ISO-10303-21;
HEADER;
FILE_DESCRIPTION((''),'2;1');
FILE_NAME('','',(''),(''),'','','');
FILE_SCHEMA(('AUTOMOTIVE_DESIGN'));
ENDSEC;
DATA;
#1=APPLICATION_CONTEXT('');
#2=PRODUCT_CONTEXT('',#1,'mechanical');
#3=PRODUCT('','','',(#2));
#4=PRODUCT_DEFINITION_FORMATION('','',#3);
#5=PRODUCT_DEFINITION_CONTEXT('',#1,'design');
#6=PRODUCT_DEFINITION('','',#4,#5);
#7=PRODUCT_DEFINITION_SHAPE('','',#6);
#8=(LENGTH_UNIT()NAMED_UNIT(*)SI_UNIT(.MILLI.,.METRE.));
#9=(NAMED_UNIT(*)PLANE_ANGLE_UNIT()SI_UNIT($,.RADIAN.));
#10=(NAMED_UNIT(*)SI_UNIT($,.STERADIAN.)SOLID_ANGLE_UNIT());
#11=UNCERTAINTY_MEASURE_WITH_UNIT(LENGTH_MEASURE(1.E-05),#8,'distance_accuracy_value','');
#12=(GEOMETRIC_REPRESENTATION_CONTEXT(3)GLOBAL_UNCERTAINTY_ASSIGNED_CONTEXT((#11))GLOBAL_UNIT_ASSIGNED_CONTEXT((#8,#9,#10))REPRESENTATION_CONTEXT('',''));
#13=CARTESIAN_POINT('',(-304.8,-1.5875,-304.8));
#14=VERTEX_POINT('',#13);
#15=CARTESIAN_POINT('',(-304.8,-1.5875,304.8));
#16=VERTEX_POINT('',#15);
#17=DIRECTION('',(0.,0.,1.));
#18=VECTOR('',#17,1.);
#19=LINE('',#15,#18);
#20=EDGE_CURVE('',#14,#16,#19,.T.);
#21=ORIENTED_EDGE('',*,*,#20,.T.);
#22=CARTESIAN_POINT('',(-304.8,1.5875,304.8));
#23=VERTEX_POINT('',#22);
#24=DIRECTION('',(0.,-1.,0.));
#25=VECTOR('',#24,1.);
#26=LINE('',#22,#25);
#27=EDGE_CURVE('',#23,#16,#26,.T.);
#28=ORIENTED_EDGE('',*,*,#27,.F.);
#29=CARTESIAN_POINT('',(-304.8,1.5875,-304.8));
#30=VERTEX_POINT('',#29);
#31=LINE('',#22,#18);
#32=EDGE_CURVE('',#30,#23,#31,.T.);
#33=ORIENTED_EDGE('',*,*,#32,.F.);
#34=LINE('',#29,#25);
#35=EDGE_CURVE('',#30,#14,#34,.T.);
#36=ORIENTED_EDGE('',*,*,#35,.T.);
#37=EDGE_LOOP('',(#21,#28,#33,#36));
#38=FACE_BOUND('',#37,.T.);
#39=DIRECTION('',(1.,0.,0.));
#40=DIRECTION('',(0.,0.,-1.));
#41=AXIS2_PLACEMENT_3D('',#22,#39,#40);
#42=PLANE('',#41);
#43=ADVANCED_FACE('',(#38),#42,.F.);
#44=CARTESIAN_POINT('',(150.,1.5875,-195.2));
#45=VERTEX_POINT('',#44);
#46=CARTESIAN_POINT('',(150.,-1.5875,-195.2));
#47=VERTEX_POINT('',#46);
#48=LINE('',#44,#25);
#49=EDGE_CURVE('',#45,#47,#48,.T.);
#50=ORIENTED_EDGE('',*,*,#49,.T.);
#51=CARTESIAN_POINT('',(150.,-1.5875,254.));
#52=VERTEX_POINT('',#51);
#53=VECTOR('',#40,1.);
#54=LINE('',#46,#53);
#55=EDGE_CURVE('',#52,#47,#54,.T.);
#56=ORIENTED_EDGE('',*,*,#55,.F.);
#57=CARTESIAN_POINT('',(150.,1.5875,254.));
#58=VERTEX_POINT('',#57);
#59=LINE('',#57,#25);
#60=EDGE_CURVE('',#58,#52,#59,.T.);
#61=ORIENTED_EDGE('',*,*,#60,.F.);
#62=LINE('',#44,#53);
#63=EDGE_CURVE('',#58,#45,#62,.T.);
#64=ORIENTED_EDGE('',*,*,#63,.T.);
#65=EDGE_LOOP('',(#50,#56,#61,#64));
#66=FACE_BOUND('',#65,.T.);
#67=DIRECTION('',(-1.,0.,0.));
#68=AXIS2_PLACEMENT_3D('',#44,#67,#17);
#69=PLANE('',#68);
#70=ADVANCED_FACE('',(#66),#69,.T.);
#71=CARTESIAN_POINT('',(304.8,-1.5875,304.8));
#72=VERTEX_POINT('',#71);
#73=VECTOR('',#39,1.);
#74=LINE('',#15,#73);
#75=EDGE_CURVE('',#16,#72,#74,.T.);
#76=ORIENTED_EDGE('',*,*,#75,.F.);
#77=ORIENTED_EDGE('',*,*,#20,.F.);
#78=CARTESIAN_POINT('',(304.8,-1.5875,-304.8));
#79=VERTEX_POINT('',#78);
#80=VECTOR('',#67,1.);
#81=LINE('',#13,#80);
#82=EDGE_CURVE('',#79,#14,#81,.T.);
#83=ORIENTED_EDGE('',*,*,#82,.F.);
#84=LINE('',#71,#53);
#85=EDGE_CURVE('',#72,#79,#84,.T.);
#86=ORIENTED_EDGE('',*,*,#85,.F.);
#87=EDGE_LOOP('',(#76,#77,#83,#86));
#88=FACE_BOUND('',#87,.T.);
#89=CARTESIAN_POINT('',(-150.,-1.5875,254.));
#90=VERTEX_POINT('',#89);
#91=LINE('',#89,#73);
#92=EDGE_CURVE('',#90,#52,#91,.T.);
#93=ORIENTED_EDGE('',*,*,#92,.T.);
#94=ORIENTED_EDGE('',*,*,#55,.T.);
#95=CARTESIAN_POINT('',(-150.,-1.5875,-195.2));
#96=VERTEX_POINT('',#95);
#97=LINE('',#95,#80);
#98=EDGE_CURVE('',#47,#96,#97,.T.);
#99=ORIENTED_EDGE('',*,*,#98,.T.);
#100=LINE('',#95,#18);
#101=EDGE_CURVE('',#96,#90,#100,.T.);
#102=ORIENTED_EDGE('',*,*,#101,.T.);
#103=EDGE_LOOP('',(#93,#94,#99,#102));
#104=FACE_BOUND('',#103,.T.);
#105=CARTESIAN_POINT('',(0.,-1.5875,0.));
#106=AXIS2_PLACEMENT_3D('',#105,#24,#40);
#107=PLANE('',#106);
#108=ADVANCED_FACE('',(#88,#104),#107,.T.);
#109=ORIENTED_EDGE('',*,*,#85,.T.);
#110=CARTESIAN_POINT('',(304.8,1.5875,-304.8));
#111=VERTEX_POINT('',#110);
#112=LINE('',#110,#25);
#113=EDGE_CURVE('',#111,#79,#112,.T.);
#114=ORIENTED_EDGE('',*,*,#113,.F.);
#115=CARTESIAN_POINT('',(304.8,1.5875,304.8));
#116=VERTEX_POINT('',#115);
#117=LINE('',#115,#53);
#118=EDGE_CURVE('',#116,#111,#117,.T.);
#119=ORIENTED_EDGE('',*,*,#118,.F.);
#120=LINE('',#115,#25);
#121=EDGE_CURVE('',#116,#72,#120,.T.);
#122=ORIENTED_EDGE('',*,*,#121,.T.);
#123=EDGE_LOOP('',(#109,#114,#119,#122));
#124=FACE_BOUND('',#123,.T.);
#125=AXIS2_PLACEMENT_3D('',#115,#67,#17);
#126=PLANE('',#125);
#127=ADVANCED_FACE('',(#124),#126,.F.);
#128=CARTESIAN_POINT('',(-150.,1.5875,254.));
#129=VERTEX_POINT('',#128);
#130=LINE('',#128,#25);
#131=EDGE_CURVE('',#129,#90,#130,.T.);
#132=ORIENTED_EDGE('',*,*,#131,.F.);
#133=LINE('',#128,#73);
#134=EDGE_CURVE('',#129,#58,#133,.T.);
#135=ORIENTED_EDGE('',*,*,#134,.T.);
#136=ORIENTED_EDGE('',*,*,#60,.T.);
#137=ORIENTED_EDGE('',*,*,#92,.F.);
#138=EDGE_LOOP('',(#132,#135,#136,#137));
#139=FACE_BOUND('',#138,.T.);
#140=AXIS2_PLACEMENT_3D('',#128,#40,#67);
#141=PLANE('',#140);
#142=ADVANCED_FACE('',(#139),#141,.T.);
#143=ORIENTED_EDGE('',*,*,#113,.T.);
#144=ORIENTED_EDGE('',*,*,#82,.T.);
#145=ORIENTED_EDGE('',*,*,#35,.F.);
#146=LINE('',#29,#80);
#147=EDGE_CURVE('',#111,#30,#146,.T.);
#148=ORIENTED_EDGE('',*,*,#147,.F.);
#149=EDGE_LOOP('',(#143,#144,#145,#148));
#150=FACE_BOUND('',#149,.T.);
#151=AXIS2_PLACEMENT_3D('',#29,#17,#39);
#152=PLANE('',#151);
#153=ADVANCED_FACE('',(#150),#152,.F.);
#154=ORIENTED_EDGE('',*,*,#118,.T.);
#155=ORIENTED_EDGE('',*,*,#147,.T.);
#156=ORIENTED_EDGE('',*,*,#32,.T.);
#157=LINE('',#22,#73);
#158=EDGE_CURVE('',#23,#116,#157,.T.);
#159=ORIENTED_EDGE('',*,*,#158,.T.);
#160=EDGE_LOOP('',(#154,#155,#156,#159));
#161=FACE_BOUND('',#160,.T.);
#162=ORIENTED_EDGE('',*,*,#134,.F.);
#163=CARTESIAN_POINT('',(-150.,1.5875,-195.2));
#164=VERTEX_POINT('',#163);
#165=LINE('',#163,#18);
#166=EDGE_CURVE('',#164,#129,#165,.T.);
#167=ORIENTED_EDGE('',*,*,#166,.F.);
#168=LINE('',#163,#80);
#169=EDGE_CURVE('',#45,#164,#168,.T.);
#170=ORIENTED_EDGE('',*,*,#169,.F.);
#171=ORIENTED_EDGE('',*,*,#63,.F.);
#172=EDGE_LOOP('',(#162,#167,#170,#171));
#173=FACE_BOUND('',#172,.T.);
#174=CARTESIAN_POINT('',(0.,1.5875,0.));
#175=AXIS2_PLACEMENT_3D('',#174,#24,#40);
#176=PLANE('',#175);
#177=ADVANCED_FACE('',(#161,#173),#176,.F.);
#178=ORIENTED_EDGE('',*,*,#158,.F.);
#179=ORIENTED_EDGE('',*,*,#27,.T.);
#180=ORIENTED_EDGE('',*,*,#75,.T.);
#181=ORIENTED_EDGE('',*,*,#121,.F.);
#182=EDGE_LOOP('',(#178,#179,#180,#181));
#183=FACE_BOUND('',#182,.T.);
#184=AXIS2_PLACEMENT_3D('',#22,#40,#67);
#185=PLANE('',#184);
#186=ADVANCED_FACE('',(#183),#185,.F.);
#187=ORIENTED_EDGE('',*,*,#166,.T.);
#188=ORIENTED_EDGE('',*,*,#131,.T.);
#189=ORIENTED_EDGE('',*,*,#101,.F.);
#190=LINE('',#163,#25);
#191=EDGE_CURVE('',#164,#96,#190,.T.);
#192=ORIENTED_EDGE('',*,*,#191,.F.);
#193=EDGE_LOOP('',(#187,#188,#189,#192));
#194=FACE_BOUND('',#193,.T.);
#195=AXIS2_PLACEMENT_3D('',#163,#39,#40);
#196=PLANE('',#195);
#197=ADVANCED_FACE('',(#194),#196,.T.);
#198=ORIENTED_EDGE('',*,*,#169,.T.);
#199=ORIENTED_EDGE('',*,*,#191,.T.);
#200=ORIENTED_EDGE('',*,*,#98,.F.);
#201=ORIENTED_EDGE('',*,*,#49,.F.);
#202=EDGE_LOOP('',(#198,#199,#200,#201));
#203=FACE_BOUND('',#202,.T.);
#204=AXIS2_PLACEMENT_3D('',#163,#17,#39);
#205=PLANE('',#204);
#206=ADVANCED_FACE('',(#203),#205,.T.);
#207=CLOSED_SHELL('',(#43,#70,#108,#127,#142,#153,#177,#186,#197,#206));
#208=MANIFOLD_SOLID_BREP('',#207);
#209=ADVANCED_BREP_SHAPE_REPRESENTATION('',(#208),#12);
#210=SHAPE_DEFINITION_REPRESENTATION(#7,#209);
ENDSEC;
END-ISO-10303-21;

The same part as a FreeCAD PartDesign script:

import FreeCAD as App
import Part
import Sketcher
from FreeCAD import Vector

doc = App.newDocument("Part")
body = doc.addObject("PartDesign::Body", "Body")

# Sketch on XZ plane
sketch1 = body.newObject("Sketcher::SketchObject", "Sketch")
sketch1.AttachmentSupport = (doc.getObject("XZ_Plane"), [""])
sketch1.MapMode = "FlatFace"
sketch1.addGeometry([
    Part.LineSegment(Vector(-305, -305, 0), Vector(-305, 305, 0)),  # 0
    Part.LineSegment(Vector(-305, 305, 0), Vector(305, 305, 0)),  # 1
    Part.LineSegment(Vector(305, 305, 0), Vector(305, -305, 0)),  # 2
    Part.LineSegment(Vector(305, -305, 0), Vector(-305, -305, 0)),  # 3
    Part.LineSegment(Vector(150, 254, 0), Vector(-150, 254, 0)),  # 4
    Part.LineSegment(Vector(-150, 254, 0), Vector(-150, -195, 0)),  # 5
    Part.LineSegment(Vector(-150, -195, 0), Vector(150, -195, 0)),  # 6
    Part.LineSegment(Vector(150, -195, 0), Vector(150, 254, 0)),  # 7
], False)
sketch1.addConstraint([
    Sketcher.Constraint("Coincident", 0, 2, 1, 1),
    Sketcher.Constraint("Coincident", 1, 2, 2, 1),
    Sketcher.Constraint("Coincident", 2, 2, 3, 1),
    Sketcher.Constraint("Coincident", 3, 2, 0, 1),
    Sketcher.Constraint("Coincident", 4, 2, 5, 1),
    Sketcher.Constraint("Coincident", 5, 2, 6, 1),
    Sketcher.Constraint("Coincident", 6, 2, 7, 1),
    Sketcher.Constraint("Coincident", 7, 2, 4, 1),
    Sketcher.Constraint("Vertical", 0),
    Sketcher.Constraint("Horizontal", 1),
    Sketcher.Constraint("Vertical", 2),
    Sketcher.Constraint("Horizontal", 3),
    Sketcher.Constraint("Horizontal", 4),
    Sketcher.Constraint("Vertical", 5),
    Sketcher.Constraint("Horizontal", 6),
    Sketcher.Constraint("Vertical", 7),
    Sketcher.Constraint("Symmetric", 0, 2, 2, 2, -1, 1),
    Sketcher.Constraint("Equal", 3, 0),
    Sketcher.Constraint("DistanceX", 4, 2, 4, 1, 300.0),
    Sketcher.Constraint("DistanceX", 1, 1, 1, 2, 609.6),
    Sketcher.Constraint("DistanceY", 5, 2, 5, 1, 449.2),
    Sketcher.Constraint("DistanceX", 4, 2, -1, 1, 150.0),
    Sketcher.Constraint("DistanceY", -1, 1, 4, 2, 254.0),
])
pad1 = body.newObject("PartDesign::Pad", "Pad")
pad1.Profile = sketch1
pad1.Length = 3.175
pad1.Midplane = True

doc.recompute()
